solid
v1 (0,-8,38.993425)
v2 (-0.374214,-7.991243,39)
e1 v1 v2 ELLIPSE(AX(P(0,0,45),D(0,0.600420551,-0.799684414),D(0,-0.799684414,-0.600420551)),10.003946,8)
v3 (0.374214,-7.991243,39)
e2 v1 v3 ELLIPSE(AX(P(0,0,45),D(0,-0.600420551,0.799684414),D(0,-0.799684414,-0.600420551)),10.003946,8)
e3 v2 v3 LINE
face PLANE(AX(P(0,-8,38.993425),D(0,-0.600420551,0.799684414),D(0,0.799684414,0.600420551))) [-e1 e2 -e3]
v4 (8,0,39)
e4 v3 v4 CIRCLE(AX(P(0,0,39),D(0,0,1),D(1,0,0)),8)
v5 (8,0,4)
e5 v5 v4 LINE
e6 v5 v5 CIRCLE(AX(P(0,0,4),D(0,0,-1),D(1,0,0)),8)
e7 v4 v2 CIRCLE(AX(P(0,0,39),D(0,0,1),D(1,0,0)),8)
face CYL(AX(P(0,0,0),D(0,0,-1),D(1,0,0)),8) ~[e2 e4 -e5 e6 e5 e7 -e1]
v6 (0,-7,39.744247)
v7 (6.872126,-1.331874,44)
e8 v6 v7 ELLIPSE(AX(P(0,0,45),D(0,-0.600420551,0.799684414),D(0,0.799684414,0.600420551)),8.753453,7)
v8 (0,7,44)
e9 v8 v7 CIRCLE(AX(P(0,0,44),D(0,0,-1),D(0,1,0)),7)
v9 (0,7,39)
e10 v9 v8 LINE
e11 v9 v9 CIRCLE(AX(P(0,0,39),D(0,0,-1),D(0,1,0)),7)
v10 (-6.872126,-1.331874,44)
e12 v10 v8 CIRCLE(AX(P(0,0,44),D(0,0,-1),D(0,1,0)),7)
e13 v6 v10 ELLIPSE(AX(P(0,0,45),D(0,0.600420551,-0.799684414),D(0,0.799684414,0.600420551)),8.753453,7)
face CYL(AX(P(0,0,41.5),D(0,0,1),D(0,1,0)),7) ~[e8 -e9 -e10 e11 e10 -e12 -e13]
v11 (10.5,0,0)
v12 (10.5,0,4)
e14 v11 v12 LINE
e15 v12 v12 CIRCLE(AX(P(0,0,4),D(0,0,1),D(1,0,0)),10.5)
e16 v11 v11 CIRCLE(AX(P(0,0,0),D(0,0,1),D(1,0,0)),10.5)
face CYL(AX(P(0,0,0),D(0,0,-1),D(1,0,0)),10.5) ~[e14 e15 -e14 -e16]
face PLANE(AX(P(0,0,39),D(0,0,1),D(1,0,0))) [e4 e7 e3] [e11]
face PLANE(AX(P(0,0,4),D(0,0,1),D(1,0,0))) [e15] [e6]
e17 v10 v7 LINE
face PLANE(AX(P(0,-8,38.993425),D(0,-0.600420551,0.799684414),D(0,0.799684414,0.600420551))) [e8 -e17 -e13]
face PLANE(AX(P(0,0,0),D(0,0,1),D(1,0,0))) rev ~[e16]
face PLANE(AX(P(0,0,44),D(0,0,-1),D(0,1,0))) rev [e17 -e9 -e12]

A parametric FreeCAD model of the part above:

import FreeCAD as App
import Part
import Sketcher

V = App.Vector
Q = App.Units.Quantity


def add_polygon(sketch, points):
    """Adds a closed chain of lines whose ends are joined by coincident constraints."""
    first, n = sketch.GeometryCount, len(points)
    for a, b in zip(points, points[1:] + points[:1]):
        sketch.addGeometry(Part.LineSegment(App.Vector(*a, 0), App.Vector(*b, 0)), False)
    for i in range(n):
        sketch.addConstraint(Sketcher.Constraint("Coincident", first + i, 2, first + (i + 1) % n, 1))

doc = App.newDocument("Part")
body = doc.addObject("PartDesign::Body", "Body")

# Sketch on XY plane
sketch1 = doc.addObject("Sketcher::SketchObject", "Sketch")
body.addObject(sketch1)
sketch1.AttachmentSupport = (doc.XY_Plane, [""])
sketch1.MapMode = "FlatFace"
sketch1.addGeometry(Part.Circle(V(0, 0, 0), V(0, 0, 1), 10.5), False)
sketch1.addConstraint([
    Sketcher.Constraint("Coincident", 0, 3, -1, 1),
    Sketcher.Constraint("Diameter", 0, Q("21 mm")),
])
pad1 = doc.addObject("PartDesign::Pad", "Pad")
body.addObject(pad1)
pad1.Profile = sketch1
pad1.Length = 4

# Sketch on XY plane
sketch2 = doc.addObject("Sketcher::SketchObject", "Sketch001")
body.addObject(sketch2)
sketch2.AttachmentSupport = (doc.XY_Plane, [""])
sketch2.MapMode = "FlatFace"
sketch2.addGeometry(Part.Circle(V(0, 0, 0), V(0, 0, 1), 8), False)
sketch2.addConstraint([
    Sketcher.Constraint("Coincident", 0, 3, -1, 1),
    Sketcher.Constraint("Diameter", 0, Q("16 mm")),
])
pad2 = doc.addObject("PartDesign::Pad", "Pad001")
body.addObject(pad2)
pad2.Profile = sketch2
pad2.Length = 39

# Sketch on YZ plane
sketch3 = doc.addObject("Sketcher::SketchObject", "Sketch002")
body.addObject(sketch3)
sketch3.AttachmentSupport = (doc.YZ_Plane, [""])
sketch3.MapMode = "FlatFace"
add_polygon(sketch3, [(0, 44), (0, 39), (7, 39), (7, 44)])  # lines 0-3
sketch3.addConstraint([
    Sketcher.Constraint("Vertical", 0),
    Sketcher.Constraint("Horizontal", 1),
    Sketcher.Constraint("Vertical", 2),
    Sketcher.Constraint("Horizontal", 3),
    Sketcher.Constraint("PointOnObject", 0, 2, -2),
    Sketcher.Constraint("DistanceX", 1, 1, 1, 2, Q("7 mm")),
    Sketcher.Constraint("DistanceY", 0, 2, 0, 1, Q("5 mm")),
    Sketcher.Constraint("DistanceY", -1, 1, 0, 2, Q("39 mm")),
])
revolution = doc.addObject("PartDesign::Revolution", "Revolution")
body.addObject(revolution)
revolution.Profile = sketch3
revolution.ReferenceAxis = (sketch3, ["V_Axis"])
revolution.Angle = 360

# Sketch on YZ plane
sketch4 = doc.addObject("Sketcher::SketchObject", "Sketch003")
body.addObject(sketch4)
sketch4.AttachmentSupport = (doc.YZ_Plane, [""])
sketch4.MapMode = "FlatFace"
add_polygon(sketch4, [(0, 45), (-8, 45), (-8, 38.993425)])  # lines 0-2
sketch4.addConstraint([
    Sketcher.Constraint("Horizontal", 0),
    Sketcher.Constraint("Vertical", 1),
    Sketcher.Constraint("PointOnObject", 2, 2, -2),
    Sketcher.Constraint("DistanceX", 0, 2, 0, 1, Q("8 mm")),
    Sketcher.Constraint("DistanceY", -1, 1, 0, 2, Q("45 mm")),
    Sketcher.Constraint("DistanceY", 1, 2, 1, 1, Q("6.006575 mm")),
])
pocket1 = doc.addObject("PartDesign::Pocket", "Pocket")
body.addObject(pocket1)
pocket1.Profile = sketch4
pocket1.Type = "ThroughAll"
pocket1.Midplane = True

doc.recompute()
